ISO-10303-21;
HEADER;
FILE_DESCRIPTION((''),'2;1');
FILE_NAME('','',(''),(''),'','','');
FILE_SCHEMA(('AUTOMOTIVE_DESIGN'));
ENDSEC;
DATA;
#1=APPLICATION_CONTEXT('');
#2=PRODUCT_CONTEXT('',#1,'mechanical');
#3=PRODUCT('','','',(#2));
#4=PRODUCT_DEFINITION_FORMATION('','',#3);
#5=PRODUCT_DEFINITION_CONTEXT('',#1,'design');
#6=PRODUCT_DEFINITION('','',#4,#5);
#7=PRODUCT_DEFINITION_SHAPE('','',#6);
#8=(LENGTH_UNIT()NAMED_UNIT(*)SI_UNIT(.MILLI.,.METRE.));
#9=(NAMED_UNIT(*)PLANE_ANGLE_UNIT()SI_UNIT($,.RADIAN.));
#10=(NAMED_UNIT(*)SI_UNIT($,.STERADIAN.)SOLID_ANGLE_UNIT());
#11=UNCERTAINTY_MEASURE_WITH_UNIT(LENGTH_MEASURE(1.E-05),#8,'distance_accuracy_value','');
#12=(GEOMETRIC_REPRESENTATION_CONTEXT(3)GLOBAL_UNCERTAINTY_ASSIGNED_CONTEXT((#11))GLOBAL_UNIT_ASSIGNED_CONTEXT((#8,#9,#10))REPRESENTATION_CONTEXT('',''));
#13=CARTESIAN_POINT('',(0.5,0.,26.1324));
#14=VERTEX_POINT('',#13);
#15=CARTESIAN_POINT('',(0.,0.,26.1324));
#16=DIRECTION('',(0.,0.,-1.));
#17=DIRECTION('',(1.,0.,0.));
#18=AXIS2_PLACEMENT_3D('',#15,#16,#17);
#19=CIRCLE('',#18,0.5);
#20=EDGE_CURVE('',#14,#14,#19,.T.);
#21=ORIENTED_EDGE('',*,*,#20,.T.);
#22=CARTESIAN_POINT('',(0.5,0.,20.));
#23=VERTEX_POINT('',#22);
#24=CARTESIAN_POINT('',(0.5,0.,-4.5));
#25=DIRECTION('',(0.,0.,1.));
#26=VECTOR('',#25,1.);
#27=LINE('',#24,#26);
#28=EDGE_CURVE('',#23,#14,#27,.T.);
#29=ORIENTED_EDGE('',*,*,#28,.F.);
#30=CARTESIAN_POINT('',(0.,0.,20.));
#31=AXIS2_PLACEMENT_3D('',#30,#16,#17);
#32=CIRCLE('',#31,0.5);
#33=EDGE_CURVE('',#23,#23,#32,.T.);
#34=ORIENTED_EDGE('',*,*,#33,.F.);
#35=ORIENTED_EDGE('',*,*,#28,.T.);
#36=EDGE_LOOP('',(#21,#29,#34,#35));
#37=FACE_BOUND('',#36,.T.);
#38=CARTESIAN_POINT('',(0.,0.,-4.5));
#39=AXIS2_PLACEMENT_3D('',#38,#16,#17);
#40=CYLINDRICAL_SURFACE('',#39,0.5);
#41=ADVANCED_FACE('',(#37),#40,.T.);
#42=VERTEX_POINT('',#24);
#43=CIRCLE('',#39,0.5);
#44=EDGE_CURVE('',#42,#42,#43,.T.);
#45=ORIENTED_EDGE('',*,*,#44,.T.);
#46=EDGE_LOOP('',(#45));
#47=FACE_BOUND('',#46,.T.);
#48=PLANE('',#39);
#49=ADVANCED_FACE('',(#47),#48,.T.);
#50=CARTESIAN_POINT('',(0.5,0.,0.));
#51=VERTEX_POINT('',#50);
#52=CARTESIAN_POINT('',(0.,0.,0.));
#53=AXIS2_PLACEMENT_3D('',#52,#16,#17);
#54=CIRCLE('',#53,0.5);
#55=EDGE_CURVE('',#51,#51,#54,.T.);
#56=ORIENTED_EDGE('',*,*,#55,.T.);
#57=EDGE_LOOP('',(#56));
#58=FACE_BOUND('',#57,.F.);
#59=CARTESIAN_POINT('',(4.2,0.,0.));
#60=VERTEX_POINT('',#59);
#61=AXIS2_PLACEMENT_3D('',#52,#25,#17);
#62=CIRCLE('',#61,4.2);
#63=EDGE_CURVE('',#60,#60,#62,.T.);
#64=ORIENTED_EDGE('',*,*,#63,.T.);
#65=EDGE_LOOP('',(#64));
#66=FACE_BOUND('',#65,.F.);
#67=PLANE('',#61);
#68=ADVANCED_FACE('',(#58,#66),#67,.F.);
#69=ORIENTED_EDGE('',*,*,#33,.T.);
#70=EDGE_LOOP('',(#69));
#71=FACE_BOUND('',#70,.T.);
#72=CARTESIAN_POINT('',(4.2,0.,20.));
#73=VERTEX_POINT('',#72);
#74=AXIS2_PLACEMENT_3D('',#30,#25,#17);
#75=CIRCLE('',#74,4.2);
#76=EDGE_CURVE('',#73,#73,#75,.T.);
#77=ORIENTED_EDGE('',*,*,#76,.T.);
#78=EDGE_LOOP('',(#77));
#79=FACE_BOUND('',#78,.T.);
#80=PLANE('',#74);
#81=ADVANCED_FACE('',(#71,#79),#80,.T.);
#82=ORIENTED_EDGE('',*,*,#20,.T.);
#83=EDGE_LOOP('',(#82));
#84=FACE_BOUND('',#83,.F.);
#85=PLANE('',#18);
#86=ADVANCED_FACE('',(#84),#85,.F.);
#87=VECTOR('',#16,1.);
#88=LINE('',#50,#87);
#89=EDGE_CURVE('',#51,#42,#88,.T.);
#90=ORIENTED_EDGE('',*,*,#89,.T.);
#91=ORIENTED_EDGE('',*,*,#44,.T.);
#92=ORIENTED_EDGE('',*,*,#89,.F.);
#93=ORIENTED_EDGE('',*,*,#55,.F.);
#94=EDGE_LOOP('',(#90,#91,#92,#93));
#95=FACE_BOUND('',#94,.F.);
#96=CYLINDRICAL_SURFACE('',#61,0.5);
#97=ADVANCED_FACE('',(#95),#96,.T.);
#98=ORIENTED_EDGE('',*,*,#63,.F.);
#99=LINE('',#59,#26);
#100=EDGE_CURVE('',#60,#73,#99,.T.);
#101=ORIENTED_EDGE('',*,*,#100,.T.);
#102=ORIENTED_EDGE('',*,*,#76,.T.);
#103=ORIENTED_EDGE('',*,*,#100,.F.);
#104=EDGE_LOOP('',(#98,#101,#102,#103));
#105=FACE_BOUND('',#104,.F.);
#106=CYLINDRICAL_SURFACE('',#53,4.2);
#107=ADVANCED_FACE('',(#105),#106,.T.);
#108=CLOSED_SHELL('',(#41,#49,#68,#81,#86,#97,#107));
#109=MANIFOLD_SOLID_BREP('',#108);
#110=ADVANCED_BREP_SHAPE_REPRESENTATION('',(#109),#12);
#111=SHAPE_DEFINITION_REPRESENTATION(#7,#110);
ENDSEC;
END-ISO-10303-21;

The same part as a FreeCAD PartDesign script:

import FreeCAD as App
import Part
import Sketcher

V = App.Vector
Q = App.Units.Quantity

doc = App.newDocument("Part")
body = doc.addObject("PartDesign::Body", "Body")

sketch1 = body.newObject("Sketcher::SketchObject", "Sketch")
sketch1.AttachmentSupport = (doc.getObject("XY_Plane"), [""])
sketch1.MapMode = "FlatFace"
sketch1.addGeometry(Part.Circle(V(0, 0, 0), V(0, 0, 1), 4.2), False)
sketch1.addConstraint(Sketcher.Constraint("Coincident", 0, 3, -1, 1))
sketch1.addConstraint(Sketcher.Constraint("Diameter", 0, Q("8.4 mm")))
pad1 = body.newObject("PartDesign::Pad", "Pad")
pad1.Profile = sketch1
pad1.Length = 20

sketch2 = body.newObject("Sketcher::SketchObject", "Sketch001")
sketch2.AttachmentSupport = (doc.getObject("XY_Plane"), [""])
sketch2.MapMode = "FlatFace"
sketch2.addGeometry(Part.Circle(V(0, 0, 0), V(0, 0, 1), 0.5), False)
sketch2.addConstraint(Sketcher.Constraint("Coincident", 0, 3, -1, 1))
sketch2.addConstraint(Sketcher.Constraint("Diameter", 0, Q("1 mm")))
pad2 = body.newObject("PartDesign::Pad", "Pad001")
pad2.Profile = sketch2
pad2.Length = 4.5
pad2.Reversed = True

sketch3 = body.newObject("Sketcher::SketchObject", "Sketch002")
sketch3.AttachmentSupport = (doc.getObject("XY_Plane"), [""])
sketch3.MapMode = "FlatFace"
sketch3.AttachmentOffset = App.Placement(V(0, 0, -4.5), App.Rotation())
sketch3.addGeometry(Part.Circle(V(0, 0, 0), V(0, 0, 1), 0.5), False)
sketch3.addConstraint(Sketcher.Constraint("Coincident", 0, 3, -1, 1))
sketch3.addConstraint(Sketcher.Constraint("Diameter", 0, Q("1 mm")))
pad3 = body.newObject("PartDesign::Pad", "Pad002")
pad3.Profile = sketch3
pad3.Length = 30.6324

doc.recompute()
